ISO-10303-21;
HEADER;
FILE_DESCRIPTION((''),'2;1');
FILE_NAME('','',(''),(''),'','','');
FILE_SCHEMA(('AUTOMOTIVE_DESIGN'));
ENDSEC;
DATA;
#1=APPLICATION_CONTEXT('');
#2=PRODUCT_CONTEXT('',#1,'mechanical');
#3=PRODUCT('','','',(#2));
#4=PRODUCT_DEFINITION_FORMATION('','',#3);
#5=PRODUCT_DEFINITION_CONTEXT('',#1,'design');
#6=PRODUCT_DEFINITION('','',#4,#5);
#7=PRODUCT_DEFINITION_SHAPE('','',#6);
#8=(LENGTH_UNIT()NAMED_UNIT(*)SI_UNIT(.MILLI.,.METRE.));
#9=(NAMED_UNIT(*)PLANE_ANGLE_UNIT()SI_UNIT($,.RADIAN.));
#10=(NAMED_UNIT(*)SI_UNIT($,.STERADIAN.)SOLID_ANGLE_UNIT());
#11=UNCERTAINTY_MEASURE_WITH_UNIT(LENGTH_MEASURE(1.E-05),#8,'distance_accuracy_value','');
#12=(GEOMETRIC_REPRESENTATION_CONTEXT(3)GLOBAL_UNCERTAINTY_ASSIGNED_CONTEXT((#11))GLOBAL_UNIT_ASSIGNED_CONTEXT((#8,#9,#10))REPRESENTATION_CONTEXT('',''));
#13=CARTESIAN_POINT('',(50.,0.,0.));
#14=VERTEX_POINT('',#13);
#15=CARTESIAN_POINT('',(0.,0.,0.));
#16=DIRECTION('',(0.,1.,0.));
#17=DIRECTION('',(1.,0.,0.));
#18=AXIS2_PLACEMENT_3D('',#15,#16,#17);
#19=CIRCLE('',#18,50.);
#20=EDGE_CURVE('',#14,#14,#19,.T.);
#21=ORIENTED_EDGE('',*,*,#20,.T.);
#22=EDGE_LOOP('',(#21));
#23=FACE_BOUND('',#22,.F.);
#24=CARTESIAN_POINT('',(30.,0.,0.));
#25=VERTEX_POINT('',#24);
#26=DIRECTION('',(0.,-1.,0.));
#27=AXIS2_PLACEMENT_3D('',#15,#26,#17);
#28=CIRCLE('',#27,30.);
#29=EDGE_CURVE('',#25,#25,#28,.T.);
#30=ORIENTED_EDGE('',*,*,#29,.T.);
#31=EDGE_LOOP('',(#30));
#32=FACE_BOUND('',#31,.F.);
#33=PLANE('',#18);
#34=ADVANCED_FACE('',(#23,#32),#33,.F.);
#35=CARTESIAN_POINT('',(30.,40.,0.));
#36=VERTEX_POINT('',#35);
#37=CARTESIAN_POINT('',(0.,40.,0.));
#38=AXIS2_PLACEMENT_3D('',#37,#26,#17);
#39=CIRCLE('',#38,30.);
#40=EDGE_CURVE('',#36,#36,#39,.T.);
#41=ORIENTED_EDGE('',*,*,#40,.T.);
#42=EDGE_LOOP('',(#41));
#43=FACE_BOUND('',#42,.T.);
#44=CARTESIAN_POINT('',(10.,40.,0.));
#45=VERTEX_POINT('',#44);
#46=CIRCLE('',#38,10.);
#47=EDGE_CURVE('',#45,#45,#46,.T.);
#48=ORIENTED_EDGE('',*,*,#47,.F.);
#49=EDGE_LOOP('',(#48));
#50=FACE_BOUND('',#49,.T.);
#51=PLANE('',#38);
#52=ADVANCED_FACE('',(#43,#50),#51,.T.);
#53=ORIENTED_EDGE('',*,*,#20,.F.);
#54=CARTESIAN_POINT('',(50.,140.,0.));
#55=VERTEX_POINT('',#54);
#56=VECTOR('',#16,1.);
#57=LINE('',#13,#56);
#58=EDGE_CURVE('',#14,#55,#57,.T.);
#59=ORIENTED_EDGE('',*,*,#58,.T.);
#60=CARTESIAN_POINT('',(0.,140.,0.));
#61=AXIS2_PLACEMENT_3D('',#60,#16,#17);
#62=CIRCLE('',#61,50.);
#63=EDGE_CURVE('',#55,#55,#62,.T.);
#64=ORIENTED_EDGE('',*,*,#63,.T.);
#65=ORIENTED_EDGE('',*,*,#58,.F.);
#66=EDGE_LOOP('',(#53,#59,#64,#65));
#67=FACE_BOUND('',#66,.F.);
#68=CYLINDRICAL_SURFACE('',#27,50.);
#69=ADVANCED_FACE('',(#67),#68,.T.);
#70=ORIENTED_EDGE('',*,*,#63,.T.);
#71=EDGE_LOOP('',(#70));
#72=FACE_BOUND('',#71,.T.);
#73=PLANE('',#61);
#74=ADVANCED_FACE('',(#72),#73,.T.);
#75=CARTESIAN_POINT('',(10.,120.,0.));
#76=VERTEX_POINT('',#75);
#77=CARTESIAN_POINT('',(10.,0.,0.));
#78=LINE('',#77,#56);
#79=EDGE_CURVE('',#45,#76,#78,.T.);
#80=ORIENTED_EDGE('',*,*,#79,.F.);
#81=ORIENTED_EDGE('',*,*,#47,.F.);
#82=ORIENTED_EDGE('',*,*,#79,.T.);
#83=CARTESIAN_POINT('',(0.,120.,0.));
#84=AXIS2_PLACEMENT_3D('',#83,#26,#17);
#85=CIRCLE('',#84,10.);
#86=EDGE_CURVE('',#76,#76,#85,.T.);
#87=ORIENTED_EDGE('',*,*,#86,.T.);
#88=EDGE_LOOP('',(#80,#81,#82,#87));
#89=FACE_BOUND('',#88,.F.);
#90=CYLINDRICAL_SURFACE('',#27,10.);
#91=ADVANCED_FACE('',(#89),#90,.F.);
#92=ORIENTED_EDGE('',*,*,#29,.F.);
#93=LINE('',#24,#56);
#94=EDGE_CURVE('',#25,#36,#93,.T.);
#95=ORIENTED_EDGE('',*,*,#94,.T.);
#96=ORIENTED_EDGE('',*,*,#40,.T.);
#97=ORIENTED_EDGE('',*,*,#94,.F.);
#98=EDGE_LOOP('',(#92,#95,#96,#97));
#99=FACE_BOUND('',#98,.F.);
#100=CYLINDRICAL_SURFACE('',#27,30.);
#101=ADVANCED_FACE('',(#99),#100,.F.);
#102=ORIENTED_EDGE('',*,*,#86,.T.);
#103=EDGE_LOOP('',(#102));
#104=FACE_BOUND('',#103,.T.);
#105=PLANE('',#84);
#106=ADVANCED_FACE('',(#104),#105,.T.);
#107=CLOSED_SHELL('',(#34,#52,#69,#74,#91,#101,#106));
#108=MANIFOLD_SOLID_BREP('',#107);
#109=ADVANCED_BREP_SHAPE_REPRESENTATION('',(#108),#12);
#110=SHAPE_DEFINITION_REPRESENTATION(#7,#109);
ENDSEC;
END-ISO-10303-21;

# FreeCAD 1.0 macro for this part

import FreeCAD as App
import Part
import Sketcher

V = App.Vector

doc = App.newDocument("Part")
params = doc.addObject("Spreadsheet::Sheet", "Params")
for row, (alias, value) in enumerate([
    ("sketch1_diameter", "100 mm"),
    ("pad1_length", "140 mm"),
    ("sketch2_diameter", "20 mm"),
    ("pocket1_length", "120 mm"),
    ("sketch3_diameter", "60 mm"),
    ("pocket2_length", "40 mm"),
], start=1):
    params.set(f"A{row}", alias)
    params.set(f"B{row}", "=" + value)
    params.setAlias(f"B{row}", alias)

body = doc.addObject("PartDesign::Body", "Body")

sketch1 = body.newObject("Sketcher::SketchObject", "Sketch")
sketch1.AttachmentSupport = (doc.getObject("XZ_Plane"), [""])
sketch1.MapMode = "FlatFace"
sketch1.addGeometry(Part.Circle(V(0, 0, 0), V(0, 0, 1), 50), False)
sketch1.addConstraint([
    Sketcher.Constraint("Coincident", 0, 3, -1, 1),
    Sketcher.Constraint("Diameter", 0, 100.0),
])
sketch1.setExpression("Constraints[1]", "Params.sketch1_diameter")
pad1 = body.newObject("PartDesign::Pad", "Pad")
pad1.Profile = sketch1
pad1.setExpression("Length", "Params.pad1_length")
pad1.Reversed = True

sketch2 = body.newObject("Sketcher::SketchObject", "Sketch001")
sketch2.AttachmentSupport = (doc.getObject("XZ_Plane"), [""])
sketch2.MapMode = "FlatFace"
sketch2.addGeometry(Part.Circle(V(0, 0, 0), V(0, 0, 1), 10), False)
sketch2.addConstraint([
    Sketcher.Constraint("Coincident", 0, 3, -1, 1),
    Sketcher.Constraint("Diameter", 0, 20.0),
])
sketch2.setExpression("Constraints[1]", "Params.sketch2_diameter")
pocket1 = body.newObject("PartDesign::Pocket", "Pocket")
pocket1.Profile = sketch2
pocket1.setExpression("Length", "Params.pocket1_length")

sketch3 = body.newObject("Sketcher::SketchObject", "Sketch002")
sketch3.AttachmentSupport = (doc.getObject("XZ_Plane"), [""])
sketch3.MapMode = "FlatFace"
sketch3.addGeometry(Part.Circle(V(0, 0, 0), V(0, 0, 1), 30), False)
sketch3.addConstraint([
    Sketcher.Constraint("Coincident", 0, 3, -1, 1),
    Sketcher.Constraint("Diameter", 0, 60.0),
])
sketch3.setExpression("Constraints[1]", "Params.sketch3_diameter")
pocket2 = body.newObject("PartDesign::Pocket", "Pocket001")
pocket2.Profile = sketch3
pocket2.setExpression("Length", "Params.pocket2_length")

doc.recompute()
